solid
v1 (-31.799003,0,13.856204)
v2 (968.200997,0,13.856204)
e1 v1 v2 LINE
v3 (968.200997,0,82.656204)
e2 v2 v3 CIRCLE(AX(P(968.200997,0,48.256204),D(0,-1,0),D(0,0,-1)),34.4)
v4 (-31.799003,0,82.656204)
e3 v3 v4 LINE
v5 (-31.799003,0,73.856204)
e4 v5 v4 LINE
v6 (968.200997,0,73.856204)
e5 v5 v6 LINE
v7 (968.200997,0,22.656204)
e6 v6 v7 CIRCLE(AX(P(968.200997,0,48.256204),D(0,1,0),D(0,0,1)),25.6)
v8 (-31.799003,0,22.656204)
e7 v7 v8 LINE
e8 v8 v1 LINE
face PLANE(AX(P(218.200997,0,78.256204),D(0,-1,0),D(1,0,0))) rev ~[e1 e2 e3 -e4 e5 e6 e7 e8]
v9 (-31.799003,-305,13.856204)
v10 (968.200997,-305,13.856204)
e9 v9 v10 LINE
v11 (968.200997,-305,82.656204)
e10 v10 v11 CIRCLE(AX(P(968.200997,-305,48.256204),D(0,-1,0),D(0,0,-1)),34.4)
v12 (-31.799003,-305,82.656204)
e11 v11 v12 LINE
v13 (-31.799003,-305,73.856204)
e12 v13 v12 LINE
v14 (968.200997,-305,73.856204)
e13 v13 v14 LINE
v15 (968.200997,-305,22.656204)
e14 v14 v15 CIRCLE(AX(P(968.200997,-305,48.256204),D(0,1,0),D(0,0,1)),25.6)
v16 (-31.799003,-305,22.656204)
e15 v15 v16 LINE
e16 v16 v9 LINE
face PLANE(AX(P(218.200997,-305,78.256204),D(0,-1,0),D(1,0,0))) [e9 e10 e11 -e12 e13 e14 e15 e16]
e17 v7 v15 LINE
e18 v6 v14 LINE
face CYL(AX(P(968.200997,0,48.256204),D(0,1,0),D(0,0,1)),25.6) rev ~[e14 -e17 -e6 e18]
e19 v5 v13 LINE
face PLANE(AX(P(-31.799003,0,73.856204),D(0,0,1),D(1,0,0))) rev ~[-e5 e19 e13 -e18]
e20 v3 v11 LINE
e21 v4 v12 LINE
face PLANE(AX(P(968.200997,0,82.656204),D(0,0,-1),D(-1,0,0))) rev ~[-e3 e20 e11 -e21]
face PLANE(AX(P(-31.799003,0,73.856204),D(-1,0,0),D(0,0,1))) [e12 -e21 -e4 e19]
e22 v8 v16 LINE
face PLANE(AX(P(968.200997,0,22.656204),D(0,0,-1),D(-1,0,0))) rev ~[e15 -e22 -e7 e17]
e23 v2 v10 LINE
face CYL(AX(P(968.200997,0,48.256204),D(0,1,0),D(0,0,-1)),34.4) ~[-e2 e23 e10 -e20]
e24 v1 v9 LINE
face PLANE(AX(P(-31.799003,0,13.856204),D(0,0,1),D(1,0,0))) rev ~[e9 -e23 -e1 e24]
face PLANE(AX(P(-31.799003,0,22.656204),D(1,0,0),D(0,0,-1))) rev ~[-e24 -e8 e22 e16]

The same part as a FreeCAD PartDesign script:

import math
import FreeCAD as App
import Part
import Sketcher

V = App.Vector
Q = App.Units.Quantity

doc = App.newDocument("Part")
params = doc.addObject("Spreadsheet::Sheet", "Params")
for row, (alias, value) in enumerate([
    ("sketch1_radius", "25.6 mm"),
    ("sketch1_radius2", "34.4 mm"),
    ("sketch1_width", "1000 mm"),
    ("pad1_length", "305 mm"),
], start=1):
    params.set(f"A{row}", alias)
    params.set(f"B{row}", "=" + value)
    params.setAlias(f"B{row}", alias)

body = doc.addObject("PartDesign::Body", "Body")

# Sketch on XZ plane
sketch1 = doc.addObject("Sketcher::SketchObject", "Sketch")
body.addObject(sketch1)
sketch1.AttachmentSupport = (doc.XZ_Plane, [""])
sketch1.MapMode = "FlatFace"
sketch1.addGeometry([
    Part.LineSegment(V(-32, 83, 0), V(-32, 74, 0)),  # 0
    Part.LineSegment(V(-32, 74, 0), V(968, 74, 0)),  # 1
    Part.ArcOfCircle(Part.Circle(V(968, 48, 0), V(0, 0, 1), 26), math.radians(-90), math.radians(90)),  # 2
    Part.LineSegment(V(968, 23, 0), V(-32, 23, 0)),  # 3
    Part.LineSegment(V(-32, 23, 0), V(-32, 14, 0)),  # 4
    Part.LineSegment(V(-32, 14, 0), V(968, 14, 0)),  # 5
    Part.ArcOfCircle(Part.Circle(V(968, 48, 0), V(0, 0, 1), 34), math.radians(-90), math.radians(90)),  # 6
    Part.LineSegment(V(968, 83, 0), V(-32, 83, 0)),  # 7
], False)
sketch1.addConstraint([
    Sketcher.Constraint("Coincident", 0, 2, 1, 1),
    Sketcher.Constraint("Tangent", 1, 2, 2, 2),
    Sketcher.Constraint("Tangent", 2, 1, 3, 1),
    Sketcher.Constraint("Coincident", 3, 2, 4, 1),
    Sketcher.Constraint("Coincident", 4, 2, 5, 1),
    Sketcher.Constraint("Tangent", 5, 2, 6, 1),
    Sketcher.Constraint("Tangent", 6, 2, 7, 1),
    Sketcher.Constraint("Coincident", 7, 2, 0, 1),
    Sketcher.Constraint("Vertical", 0),
    Sketcher.Constraint("Horizontal", 1),
    Sketcher.Constraint("Horizontal", 3),
    Sketcher.Constraint("Vertical", 4),
    Sketcher.Constraint("Horizontal", 5),
    Sketcher.Constraint("Horizontal", 7),
    Sketcher.Constraint("Coincident", 6, 3, 2, 3),
    Sketcher.Constraint("Vertical", 0, 2, 3, 2),
    Sketcher.Constraint("Radius", 2, Q("25.6 mm")),
    Sketcher.Constraint("Radius", 6, Q("34.4 mm")),
    Sketcher.Constraint("DistanceX", 1, 1, 1, 2, Q("1000 mm")),
    Sketcher.Constraint("DistanceX", -1, 1, 2, 3, Q("968.200997 mm")),
    Sketcher.Constraint("DistanceY", -1, 1, 2, 3, Q("48.256204 mm")),
])
sketch1.setExpression("Constraints[16]", "Params.sketch1_radius")
sketch1.setExpression("Constraints[17]", "Params.sketch1_radius2")
sketch1.setExpression("Constraints[18]", "Params.sketch1_width")
pad1 = doc.addObject("PartDesign::Pad", "Pad")
body.addObject(pad1)
pad1.Profile = sketch1
pad1.setExpression("Length", "Params.pad1_length")

doc.recompute()
